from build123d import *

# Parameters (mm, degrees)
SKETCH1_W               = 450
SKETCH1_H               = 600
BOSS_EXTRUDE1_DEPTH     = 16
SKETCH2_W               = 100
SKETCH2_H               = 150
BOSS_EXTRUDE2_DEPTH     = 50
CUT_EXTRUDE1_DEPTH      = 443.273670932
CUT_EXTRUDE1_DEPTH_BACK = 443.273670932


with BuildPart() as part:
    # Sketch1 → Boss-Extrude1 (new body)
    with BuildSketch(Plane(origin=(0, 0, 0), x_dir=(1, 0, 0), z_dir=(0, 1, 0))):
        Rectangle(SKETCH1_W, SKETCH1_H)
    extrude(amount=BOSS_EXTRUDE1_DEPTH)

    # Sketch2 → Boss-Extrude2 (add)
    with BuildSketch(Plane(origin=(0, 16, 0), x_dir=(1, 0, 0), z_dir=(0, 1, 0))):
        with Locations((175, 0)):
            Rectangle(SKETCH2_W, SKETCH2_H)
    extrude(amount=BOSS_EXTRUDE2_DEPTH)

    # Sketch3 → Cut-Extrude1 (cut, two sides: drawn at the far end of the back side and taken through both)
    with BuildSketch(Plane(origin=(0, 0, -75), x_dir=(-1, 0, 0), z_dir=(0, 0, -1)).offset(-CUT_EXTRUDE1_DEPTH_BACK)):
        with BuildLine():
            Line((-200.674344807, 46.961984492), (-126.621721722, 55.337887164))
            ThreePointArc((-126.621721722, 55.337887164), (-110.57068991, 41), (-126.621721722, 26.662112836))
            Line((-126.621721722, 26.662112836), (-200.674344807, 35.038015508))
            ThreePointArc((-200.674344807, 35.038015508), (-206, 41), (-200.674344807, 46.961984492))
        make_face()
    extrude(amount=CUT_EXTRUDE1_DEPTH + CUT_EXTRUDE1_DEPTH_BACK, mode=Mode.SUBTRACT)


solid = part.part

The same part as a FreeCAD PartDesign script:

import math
import FreeCAD as App
import Part
import Sketcher

V = App.Vector
Q = App.Units.Quantity


def add_polygon(sketch, points):
    """Adds a closed chain of lines whose ends are joined by coincident constraints."""
    first, n = sketch.GeometryCount, len(points)
    for a, b in zip(points, points[1:] + points[:1]):
        sketch.addGeometry(Part.LineSegment(App.Vector(*a, 0), App.Vector(*b, 0)), False)
    for i in range(n):
        sketch.addConstraint(Sketcher.Constraint("Coincident", first + i, 2, first + (i + 1) % n, 1))

doc = App.newDocument("Part")
body = doc.addObject("PartDesign::Body", "Body")

sketch1 = body.newObject("Sketcher::SketchObject", "Sketch")
sketch1.AttachmentSupport = (doc.getObject("XZ_Plane"), [""])
sketch1.MapMode = "FlatFace"
add_polygon(sketch1, [(-225, -300), (-225, 300), (225, 300), (225, -300)])
sketch1.addConstraint(Sketcher.Constraint("Vertical", 0))
sketch1.addConstraint(Sketcher.Constraint("Horizontal", 1))
sketch1.addConstraint(Sketcher.Constraint("Vertical", 2))
sketch1.addConstraint(Sketcher.Constraint("Horizontal", 3))
sketch1.addConstraint(Sketcher.Constraint("Symmetric", 0, 2, 2, 2, -1, 1))
sketch1.addConstraint(Sketcher.Constraint("DistanceX", 1, 1, 1, 2, Q("450 mm")))
sketch1.addConstraint(Sketcher.Constraint("DistanceY", 0, 1, 0, 2, Q("600 mm")))
pad1 = body.newObject("PartDesign::Pad", "Pad")
pad1.Profile = sketch1
pad1.Length = 16
pad1.Reversed = True

sketch2 = body.newObject("Sketcher::SketchObject", "Sketch001")
sketch2.AttachmentSupport = (doc.getObject("XZ_Plane"), [""])
sketch2.MapMode = "FlatFace"
sketch2.AttachmentOffset = App.Placement(V(0, 0, -16), App.Rotation())
add_polygon(sketch2, [(125, -75), (125, 75), (225, 75), (225, -75)])
sketch2.addConstraint(Sketcher.Constraint("Vertical", 0))
sketch2.addConstraint(Sketcher.Constraint("Horizontal", 1))
sketch2.addConstraint(Sketcher.Constraint("Vertical", 2))
sketch2.addConstraint(Sketcher.Constraint("Horizontal", 3))
sketch2.addConstraint(Sketcher.Constraint("DistanceX", 1, 1, 1, 2, Q("100 mm")))
sketch2.addConstraint(Sketcher.Constraint("DistanceY", 0, 1, 0, 2, Q("150 mm")))
sketch2.addConstraint(Sketcher.Constraint("DistanceX", -1, 1, 0, 2, Q("125 mm")))
sketch2.addConstraint(Sketcher.Constraint("DistanceY", -1, 1, 0, 2, Q("75 mm")))
pad2 = body.newObject("PartDesign::Pad", "Pad001")
pad2.Profile = sketch2
pad2.Length = 50
pad2.Reversed = True

sketch3 = body.newObject("Sketcher::SketchObject", "Sketch002")
sketch3.AttachmentSupport = (doc.getObject("XY_Plane"), [""])
sketch3.MapMode = "FlatFace"
sketch3.AttachmentOffset = App.Placement(V(0, 0, -75), App.Rotation())
sketch3.addGeometry(Part.LineSegment(V(126.621722, 55.337887, 0), V(200.674345, 46.961984, 0)), False)
sketch3.addGeometry(Part.ArcOfCircle(Part.Circle(V(200, 41, 0), V(0, 0, 1), 6), math.radians(-83.546847), math.radians(83.546847)), False)
sketch3.addGeometry(Part.LineSegment(V(200.674345, 35.038016, 0), V(126.621722, 26.662113, 0)), False)
sketch3.addGeometry(Part.ArcOfCircle(Part.Circle(V(125, 41, 0), V(0, 0, 1), 14.42931), math.radians(83.546847), math.radians(276.453153)), False)
sketch3.addConstraint(Sketcher.Constraint("Tangent", 0, 2, 1, 2))
sketch3.addConstraint(Sketcher.Constraint("Tangent", 1, 1, 2, 1))
sketch3.addConstraint(Sketcher.Constraint("Tangent", 2, 2, 3, 2))
sketch3.addConstraint(Sketcher.Constraint("Tangent", 3, 1, 0, 1))
sketch3.addConstraint(Sketcher.Constraint("Horizontal", 1, 3, 3, 3))
sketch3.addConstraint(Sketcher.Constraint("Radius", 1, Q("6 mm")))
sketch3.addConstraint(Sketcher.Constraint("DistanceX", -1, 1, 1, 3, Q("200 mm")))
sketch3.addConstraint(Sketcher.Constraint("DistanceY", -1, 1, 1, 3, Q("41 mm")))
sketch3.addConstraint(Sketcher.Constraint("DistanceX", -1, 1, 3, 3, Q("125 mm")))
sketch3.addConstraint(Sketcher.Constraint("Radius", 3, Q("14.42931 mm")))
pocket1 = body.newObject("PartDesign::Pocket", "Pocket")
pocket1.Profile = sketch3
pocket1.Type = "ThroughAll"
pocket1.Midplane = True

doc.recompute()
